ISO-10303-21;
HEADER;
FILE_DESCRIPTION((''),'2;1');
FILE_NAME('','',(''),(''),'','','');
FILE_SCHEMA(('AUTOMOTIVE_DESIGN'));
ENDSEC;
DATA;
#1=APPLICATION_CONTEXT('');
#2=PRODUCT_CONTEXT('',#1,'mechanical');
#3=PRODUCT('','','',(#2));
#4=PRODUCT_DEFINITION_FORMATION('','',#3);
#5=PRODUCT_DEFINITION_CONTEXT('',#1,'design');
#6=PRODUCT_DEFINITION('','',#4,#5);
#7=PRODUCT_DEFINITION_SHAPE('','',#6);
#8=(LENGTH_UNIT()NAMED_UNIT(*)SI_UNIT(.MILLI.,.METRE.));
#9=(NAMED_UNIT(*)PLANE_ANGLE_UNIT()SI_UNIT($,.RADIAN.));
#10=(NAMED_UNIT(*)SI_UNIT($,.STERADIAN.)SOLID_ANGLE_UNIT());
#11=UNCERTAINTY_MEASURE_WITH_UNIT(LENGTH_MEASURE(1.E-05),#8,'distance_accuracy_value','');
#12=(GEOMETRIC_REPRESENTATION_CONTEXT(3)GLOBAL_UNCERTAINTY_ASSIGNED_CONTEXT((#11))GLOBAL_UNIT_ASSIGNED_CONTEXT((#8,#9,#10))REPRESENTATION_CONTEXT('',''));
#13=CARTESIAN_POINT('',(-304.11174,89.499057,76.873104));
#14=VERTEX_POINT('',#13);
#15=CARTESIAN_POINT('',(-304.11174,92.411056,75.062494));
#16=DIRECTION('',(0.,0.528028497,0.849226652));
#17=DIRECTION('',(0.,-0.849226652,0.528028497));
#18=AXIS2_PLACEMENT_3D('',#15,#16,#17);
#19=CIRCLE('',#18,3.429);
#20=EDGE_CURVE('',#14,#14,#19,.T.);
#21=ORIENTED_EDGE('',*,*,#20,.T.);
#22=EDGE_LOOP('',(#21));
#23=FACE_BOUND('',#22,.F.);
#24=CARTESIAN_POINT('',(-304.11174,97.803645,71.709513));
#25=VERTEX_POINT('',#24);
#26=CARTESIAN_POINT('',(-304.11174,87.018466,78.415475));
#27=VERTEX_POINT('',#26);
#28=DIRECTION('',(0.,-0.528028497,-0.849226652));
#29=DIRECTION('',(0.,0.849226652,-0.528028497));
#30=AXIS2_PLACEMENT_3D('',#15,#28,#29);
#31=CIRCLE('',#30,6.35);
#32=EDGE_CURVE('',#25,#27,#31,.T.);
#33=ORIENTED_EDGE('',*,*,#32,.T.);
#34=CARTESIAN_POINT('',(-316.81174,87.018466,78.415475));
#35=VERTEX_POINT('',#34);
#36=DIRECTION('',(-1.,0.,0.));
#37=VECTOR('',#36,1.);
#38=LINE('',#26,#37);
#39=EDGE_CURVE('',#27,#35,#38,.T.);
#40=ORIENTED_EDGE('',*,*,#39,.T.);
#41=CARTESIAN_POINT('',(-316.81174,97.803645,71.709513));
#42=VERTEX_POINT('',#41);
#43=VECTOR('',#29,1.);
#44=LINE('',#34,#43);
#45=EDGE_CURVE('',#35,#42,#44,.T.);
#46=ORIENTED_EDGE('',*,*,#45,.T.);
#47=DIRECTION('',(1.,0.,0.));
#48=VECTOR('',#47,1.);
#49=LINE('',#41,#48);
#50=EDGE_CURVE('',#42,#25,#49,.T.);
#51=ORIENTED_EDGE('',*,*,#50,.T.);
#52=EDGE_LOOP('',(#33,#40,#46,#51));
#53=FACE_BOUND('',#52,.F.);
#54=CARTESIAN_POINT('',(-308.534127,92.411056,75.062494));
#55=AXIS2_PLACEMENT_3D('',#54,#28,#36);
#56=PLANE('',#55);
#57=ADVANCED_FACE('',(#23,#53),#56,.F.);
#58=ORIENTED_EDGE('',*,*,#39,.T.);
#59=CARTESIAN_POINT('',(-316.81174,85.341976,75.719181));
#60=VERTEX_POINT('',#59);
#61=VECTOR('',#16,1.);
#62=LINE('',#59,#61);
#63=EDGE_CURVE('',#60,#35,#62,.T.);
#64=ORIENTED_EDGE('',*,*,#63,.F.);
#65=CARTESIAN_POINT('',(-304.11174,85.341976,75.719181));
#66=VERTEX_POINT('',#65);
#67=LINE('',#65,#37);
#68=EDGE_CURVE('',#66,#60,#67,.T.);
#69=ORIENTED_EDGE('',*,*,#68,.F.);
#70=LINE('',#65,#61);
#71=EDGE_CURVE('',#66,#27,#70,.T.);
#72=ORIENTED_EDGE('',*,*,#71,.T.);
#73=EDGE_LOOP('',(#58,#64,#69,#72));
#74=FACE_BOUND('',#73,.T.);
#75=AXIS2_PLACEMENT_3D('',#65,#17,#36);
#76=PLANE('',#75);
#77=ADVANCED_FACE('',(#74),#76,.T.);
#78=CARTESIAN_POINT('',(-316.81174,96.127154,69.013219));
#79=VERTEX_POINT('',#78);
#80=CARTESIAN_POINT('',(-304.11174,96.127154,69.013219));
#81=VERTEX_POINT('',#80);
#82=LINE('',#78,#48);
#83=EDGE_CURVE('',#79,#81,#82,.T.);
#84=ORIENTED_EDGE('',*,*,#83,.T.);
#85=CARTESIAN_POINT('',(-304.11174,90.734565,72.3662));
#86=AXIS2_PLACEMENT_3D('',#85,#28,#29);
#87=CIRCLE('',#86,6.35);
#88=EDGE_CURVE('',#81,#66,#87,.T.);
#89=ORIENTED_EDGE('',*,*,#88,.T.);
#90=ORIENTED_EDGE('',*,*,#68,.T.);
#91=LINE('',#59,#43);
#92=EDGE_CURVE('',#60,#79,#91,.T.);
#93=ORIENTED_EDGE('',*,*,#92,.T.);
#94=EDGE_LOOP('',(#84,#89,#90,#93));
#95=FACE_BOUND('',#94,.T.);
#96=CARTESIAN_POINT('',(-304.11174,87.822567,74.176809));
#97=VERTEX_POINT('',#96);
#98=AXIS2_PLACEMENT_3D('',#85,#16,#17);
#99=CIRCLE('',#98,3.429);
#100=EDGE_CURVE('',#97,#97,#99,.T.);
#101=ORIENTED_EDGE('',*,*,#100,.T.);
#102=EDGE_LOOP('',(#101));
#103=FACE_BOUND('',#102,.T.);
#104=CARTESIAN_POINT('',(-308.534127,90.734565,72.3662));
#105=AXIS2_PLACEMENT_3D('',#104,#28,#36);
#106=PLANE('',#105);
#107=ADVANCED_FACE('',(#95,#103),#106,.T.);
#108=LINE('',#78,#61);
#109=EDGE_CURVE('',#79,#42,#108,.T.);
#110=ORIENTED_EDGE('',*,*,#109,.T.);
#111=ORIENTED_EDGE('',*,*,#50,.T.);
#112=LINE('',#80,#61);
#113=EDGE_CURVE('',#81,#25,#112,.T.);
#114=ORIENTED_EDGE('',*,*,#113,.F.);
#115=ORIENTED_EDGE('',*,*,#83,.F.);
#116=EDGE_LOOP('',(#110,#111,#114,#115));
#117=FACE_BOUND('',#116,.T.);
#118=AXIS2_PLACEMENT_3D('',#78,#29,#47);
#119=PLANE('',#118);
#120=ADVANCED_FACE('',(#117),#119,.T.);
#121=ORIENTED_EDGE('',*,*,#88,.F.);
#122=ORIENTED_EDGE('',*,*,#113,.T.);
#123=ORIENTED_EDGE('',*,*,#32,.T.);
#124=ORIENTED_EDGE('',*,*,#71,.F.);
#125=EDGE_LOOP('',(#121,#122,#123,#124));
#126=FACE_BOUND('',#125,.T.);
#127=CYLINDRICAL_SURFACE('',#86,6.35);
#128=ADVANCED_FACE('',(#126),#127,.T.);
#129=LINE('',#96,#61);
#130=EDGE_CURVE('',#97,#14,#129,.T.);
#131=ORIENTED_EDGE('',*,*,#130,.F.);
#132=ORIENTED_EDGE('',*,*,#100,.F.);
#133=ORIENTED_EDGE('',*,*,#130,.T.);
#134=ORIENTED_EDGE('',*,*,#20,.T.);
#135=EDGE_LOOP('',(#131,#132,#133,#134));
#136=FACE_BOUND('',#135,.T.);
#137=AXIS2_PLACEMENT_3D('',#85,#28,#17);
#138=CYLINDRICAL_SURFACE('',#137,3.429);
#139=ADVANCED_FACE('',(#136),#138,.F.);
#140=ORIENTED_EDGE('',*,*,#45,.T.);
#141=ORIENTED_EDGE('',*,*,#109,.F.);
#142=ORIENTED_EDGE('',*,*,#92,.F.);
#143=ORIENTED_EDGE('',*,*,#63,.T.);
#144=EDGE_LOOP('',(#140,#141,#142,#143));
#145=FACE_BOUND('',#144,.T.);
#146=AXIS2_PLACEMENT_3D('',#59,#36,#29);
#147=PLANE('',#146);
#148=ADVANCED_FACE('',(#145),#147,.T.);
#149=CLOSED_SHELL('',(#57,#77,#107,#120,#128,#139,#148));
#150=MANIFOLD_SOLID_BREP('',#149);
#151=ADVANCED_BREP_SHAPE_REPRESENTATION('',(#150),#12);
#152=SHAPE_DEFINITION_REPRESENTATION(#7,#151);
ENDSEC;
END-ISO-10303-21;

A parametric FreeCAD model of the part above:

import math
import FreeCAD as App
import Part
import Sketcher
from FreeCAD import Vector
Q = App.Units.Quantity

doc = App.newDocument("Part")
params = doc.addObject("Spreadsheet::Sheet", "Params")
for row, (alias, value) in enumerate([
    ("sketch1_diameter", "0.27 in"),
    ("sketch1_radius", "0.25 in"),
    ("pad1_length", "0.125 in"),
], start=1):
    params.set(f"A{row}", alias)
    params.set(f"B{row}", "=" + value)
    params.setAlias(f"B{row}", alias)

body = doc.addObject("PartDesign::Body", "Body")

# Sketch on an angled plane
sketch1 = body.newObject("Sketcher::SketchObject", "Sketch")
sketch1.Placement = App.Placement(Vector(0, 57.748228, 92.876303), App.Rotation(Vector(1, 0, 0), Vector(0, 0.849226652, -0.528028497), Vector(0, 0.528028497, 0.849226652), "ZXY"))
sketch1.addGeometry([
    Part.LineSegment(Vector(-304.11174, 45.192795, 0), Vector(-316.81174, 45.192795, 0)),  # 0
    Part.LineSegment(Vector(-316.81174, 45.192795, 0), Vector(-316.81174, 32.492795, 0)),  # 1
    Part.LineSegment(Vector(-316.81174, 32.492795, 0), Vector(-304.11174, 32.492795, 0)),  # 2
    Part.ArcOfCircle(Part.Circle(Vector(-304.11174, 38.842795, 0), Vector(0, 0, 1), 6.35), math.radians(-90), math.radians(90)),  # 3
    Part.Circle(Vector(-304.11174, 38.842795, 0), Vector(0, 0, 1), 3.429),  # 4
], False)
sketch1.addConstraint([
    Sketcher.Constraint("Coincident", 0, 2, 1, 1),
    Sketcher.Constraint("Coincident", 1, 2, 2, 1),
    Sketcher.Constraint("Tangent", 2, 2, 3, 1),
    Sketcher.Constraint("Tangent", 3, 2, 0, 1),
    Sketcher.Constraint("Horizontal", 0),
    Sketcher.Constraint("Vertical", 1),
    Sketcher.Constraint("Horizontal", 2),
    Sketcher.Constraint("Coincident", 4, 3, 3, 3),
    Sketcher.Constraint("Equal", 2, 1),
    Sketcher.Constraint("Diameter", 4, Q("0.27 in")),
    Sketcher.Constraint("Radius", 3, Q("0.25 in")),
    Sketcher.Constraint("DistanceX", 3, 3, -1, 1, Q("304.11174 mm")),
    Sketcher.Constraint("DistanceY", -1, 1, 3, 3, Q("38.842795 mm")),
])
sketch1.setExpression("Constraints[9]", "Params.sketch1_diameter")
sketch1.setExpression("Constraints[10]", "Params.sketch1_radius")
pad1 = body.newObject("PartDesign::Pad", "Pad")
pad1.Profile = sketch1
pad1.setExpression("Length", "Params.pad1_length")

doc.recompute()
